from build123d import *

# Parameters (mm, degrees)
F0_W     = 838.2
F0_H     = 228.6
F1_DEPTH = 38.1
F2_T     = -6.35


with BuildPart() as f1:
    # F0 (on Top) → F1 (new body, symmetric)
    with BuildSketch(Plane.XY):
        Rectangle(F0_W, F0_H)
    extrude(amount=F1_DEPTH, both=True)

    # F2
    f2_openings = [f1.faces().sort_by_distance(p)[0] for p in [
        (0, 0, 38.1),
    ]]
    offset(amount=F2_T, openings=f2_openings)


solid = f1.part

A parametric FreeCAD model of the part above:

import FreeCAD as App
import Part
import Sketcher
from FreeCAD import Vector
Q = App.Units.Quantity


def faces_at(feature, points):
    """Names of the faces that lie closest to the given points."""
    faces = feature.Shape.Faces
    near = lambda p: min(range(len(faces)), key=lambda i: faces[i].distToShape(Part.Vertex(*p))[0])
    return sorted({f"Face{near(p) + 1}" for p in points})

doc = App.newDocument("Part")
body = doc.addObject("PartDesign::Body", "Body")

# Sketch on XY plane
sketch1 = body.newObject("Sketcher::SketchObject", "Sketch")
sketch1.AttachmentSupport = (doc.getObject("XY_Plane"), [""])
sketch1.MapMode = "FlatFace"
sketch1.addGeometry(Part.LineSegment(Vector(-419, 114, 0), Vector(-419, -114, 0)), False)
sketch1.addGeometry(Part.LineSegment(Vector(-419, -114, 0), Vector(419, -114, 0)), False)
sketch1.addGeometry(Part.LineSegment(Vector(419, -114, 0), Vector(419, 114, 0)), False)
sketch1.addGeometry(Part.LineSegment(Vector(419, 114, 0), Vector(-419, 114, 0)), False)
sketch1.addConstraint(Sketcher.Constraint("Coincident", 0, 2, 1, 1))
sketch1.addConstraint(Sketcher.Constraint("Coincident", 1, 2, 2, 1))
sketch1.addConstraint(Sketcher.Constraint("Coincident", 2, 2, 3, 1))
sketch1.addConstraint(Sketcher.Constraint("Coincident", 3, 2, 0, 1))
sketch1.addConstraint(Sketcher.Constraint("Vertical", 0))
sketch1.addConstraint(Sketcher.Constraint("Horizontal", 1))
sketch1.addConstraint(Sketcher.Constraint("Vertical", 2))
sketch1.addConstraint(Sketcher.Constraint("Horizontal", 3))
sketch1.addConstraint(Sketcher.Constraint("Symmetric", 0, 2, 2, 2, -1, 1))
sketch1.addConstraint(Sketcher.Constraint("DistanceX", 1, 1, 1, 2, Q("33 in")))
sketch1.addConstraint(Sketcher.Constraint("DistanceY", 0, 2, 0, 1, Q("9 in")))
pad1 = body.newObject("PartDesign::Pad", "Pad")
pad1.Profile = sketch1
pad1.Length = Q("3 in")
pad1.Midplane = True
doc.recompute()

thickness = body.newObject("PartDesign::Thickness", "Thickness")
thickness.Base = (pad1, faces_at(pad1, [(0, 0, 38.1)]))
thickness.Value = Q("0.25 in")
thickness.Reversed = True
thickness.Join = "Arc"

doc.recompute()
